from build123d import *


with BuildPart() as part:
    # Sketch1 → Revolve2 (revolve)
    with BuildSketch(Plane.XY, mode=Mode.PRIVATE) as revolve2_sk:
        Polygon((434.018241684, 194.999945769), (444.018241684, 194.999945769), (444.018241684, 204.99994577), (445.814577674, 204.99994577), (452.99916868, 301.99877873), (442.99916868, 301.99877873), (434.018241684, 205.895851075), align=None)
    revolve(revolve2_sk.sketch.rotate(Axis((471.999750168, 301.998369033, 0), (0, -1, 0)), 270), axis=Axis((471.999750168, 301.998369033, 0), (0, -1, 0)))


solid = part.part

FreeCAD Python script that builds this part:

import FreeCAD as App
import Part
import Sketcher
from FreeCAD import Vector

doc = App.newDocument("Part")
body = doc.addObject("PartDesign::Body", "Body")

# Sketch on XY plane
sketch1 = body.newObject("Sketcher::SketchObject", "Sketch")
sketch1.AttachmentSupport = (doc.getObject("XY_Plane"), [""])
sketch1.MapMode = "FlatFace"
sketch1.addGeometry([
    Part.LineSegment(Vector(434.018242, 194.999946, 0), Vector(444.018242, 194.999946, 0)),  # 0
    Part.LineSegment(Vector(444.018242, 194.999946, 0), Vector(444.018242, 204.999946, 0)),  # 1
    Part.LineSegment(Vector(444.018242, 204.999946, 0), Vector(445.814578, 204.999946, 0)),  # 2
    Part.LineSegment(Vector(445.814578, 204.999946, 0), Vector(452.999169, 301.998779, 0)),  # 3
    Part.LineSegment(Vector(452.999169, 301.998779, 0), Vector(442.999169, 301.998779, 0)),  # 4
    Part.LineSegment(Vector(442.999169, 301.998779, 0), Vector(434.018242, 205.895851, 0)),  # 5
    Part.LineSegment(Vector(434.018242, 205.895851, 0), Vector(434.018242, 194.999946, 0)),  # 6
], False)
sketch1.addGeometry(Part.LineSegment(Vector(471.99975, 301.998779, 0), Vector(471.99975, 194.999946, 0)), True)  # axis
sketch1.addConstraint([
    Sketcher.Constraint("Coincident", 0, 2, 1, 1),
    Sketcher.Constraint("Coincident", 1, 2, 2, 1),
    Sketcher.Constraint("Coincident", 2, 2, 3, 1),
    Sketcher.Constraint("Coincident", 3, 2, 4, 1),
    Sketcher.Constraint("Coincident", 4, 2, 5, 1),
    Sketcher.Constraint("Coincident", 5, 2, 6, 1),
    Sketcher.Constraint("Coincident", 6, 2, 0, 1),
    Sketcher.Constraint("Horizontal", 0),
    Sketcher.Constraint("Vertical", 1),
    Sketcher.Constraint("Horizontal", 2),
    Sketcher.Constraint("Horizontal", 4),
    Sketcher.Constraint("Vertical", 6),
    Sketcher.Constraint("Vertical", 7),
    Sketcher.Constraint("Horizontal", 4, 2, 7, 1),
    Sketcher.Constraint("Horizontal", 6, 2, 7, 2),
    Sketcher.Constraint("Equal", 0, 4),
    Sketcher.Constraint("Equal", 4, 1),
    Sketcher.Constraint("DistanceX", 0, 1, 0, 2, 10.0),
    Sketcher.Constraint("DistanceX", 2, 1, 2, 2, 1.796336),
    Sketcher.Constraint("DistanceY", 6, 2, 6, 1, 10.895905),
    Sketcher.Constraint("DistanceY", 7, 2, 7, 1, 106.998833),
    Sketcher.Constraint("DistanceX", -1, 1, 0, 2, 444.018242),
    Sketcher.Constraint("DistanceX", -1, 1, 3, 2, 452.999169),
    Sketcher.Constraint("DistanceY", -1, 1, 3, 2, 301.998779),
    Sketcher.Constraint("DistanceX", -1, 1, 7, 1, 471.99975),
])
revolution = body.newObject("PartDesign::Revolution", "Revolution")
revolution.Profile = sketch1
revolution.ReferenceAxis = (sketch1, ["Axis0"])
revolution.Angle = 360

doc.recompute()
